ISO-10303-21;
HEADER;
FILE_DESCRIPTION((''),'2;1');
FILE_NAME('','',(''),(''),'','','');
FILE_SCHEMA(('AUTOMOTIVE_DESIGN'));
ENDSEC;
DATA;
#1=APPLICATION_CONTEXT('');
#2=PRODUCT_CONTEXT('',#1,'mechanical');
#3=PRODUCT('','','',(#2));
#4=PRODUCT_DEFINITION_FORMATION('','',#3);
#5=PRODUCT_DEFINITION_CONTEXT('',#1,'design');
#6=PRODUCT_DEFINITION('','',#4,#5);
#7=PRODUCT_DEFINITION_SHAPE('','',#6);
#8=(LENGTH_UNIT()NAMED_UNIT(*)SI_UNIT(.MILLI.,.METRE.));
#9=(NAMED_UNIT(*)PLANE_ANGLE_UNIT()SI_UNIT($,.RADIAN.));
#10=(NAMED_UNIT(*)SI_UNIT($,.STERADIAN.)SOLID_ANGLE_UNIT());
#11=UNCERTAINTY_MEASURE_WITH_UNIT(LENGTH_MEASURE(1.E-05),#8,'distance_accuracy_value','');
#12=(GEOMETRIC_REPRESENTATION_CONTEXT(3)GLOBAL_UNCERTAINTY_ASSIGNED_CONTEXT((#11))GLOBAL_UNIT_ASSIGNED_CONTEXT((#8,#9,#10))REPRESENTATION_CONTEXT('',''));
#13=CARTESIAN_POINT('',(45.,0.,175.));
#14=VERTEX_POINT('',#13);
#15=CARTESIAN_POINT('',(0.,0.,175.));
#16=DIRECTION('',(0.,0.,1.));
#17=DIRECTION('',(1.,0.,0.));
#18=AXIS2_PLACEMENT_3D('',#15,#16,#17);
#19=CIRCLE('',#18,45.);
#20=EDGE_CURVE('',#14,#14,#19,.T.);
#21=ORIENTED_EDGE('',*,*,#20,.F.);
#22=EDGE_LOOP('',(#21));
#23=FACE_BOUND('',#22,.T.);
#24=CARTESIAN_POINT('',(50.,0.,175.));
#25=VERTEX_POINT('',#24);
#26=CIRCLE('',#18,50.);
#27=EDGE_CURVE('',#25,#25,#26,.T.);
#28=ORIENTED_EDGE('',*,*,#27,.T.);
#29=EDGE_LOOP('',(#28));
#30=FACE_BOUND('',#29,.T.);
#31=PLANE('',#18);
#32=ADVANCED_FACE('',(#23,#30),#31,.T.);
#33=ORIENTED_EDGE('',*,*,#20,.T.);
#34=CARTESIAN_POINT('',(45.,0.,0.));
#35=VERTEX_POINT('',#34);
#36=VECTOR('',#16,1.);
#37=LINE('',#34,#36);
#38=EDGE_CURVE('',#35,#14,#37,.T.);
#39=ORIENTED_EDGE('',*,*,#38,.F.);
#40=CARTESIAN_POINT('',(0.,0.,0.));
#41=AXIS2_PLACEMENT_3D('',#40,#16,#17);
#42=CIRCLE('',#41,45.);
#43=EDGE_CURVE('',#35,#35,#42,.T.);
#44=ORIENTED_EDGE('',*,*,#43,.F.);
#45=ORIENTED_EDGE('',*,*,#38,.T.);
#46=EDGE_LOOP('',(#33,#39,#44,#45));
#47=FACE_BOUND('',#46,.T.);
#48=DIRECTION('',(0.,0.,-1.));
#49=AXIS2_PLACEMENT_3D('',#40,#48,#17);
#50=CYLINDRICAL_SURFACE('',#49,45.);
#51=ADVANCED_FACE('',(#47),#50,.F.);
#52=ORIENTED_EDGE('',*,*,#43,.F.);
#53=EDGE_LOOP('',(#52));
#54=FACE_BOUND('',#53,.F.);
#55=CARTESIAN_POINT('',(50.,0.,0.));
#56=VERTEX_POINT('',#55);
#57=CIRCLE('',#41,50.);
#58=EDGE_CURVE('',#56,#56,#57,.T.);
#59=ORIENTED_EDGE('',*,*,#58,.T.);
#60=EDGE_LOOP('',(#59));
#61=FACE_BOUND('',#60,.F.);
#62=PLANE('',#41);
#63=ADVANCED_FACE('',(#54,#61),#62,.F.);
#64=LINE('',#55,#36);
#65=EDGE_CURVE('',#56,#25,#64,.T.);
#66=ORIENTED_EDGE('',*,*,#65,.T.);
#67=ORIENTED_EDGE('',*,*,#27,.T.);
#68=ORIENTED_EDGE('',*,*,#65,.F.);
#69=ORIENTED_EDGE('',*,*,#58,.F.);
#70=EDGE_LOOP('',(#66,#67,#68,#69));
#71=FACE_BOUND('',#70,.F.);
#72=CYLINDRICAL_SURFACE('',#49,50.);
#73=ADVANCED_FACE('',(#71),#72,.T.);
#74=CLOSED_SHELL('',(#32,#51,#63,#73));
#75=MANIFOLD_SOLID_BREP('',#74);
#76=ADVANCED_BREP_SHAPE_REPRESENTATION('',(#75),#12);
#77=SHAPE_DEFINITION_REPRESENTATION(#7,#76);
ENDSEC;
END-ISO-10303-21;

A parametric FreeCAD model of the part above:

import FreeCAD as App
import Part
import Sketcher

doc = App.newDocument("Part")
body = doc.addObject("PartDesign::Body", "Body")

# Sketch on XY plane
sketch1 = doc.addObject("Sketcher::SketchObject", "Sketch")
body.addObject(sketch1)
sketch1.AttachmentSupport = (doc.XY_Plane, [""])
sketch1.MapMode = "FlatFace"
sketch1.addGeometry([
    Part.Circle(App.Vector(0, 0, 0), App.Vector(0, 0, 1), 50),
    Part.Circle(App.Vector(0, 0, 0), App.Vector(0, 0, 1), 45),
], False)
sketch1.addConstraint([
    Sketcher.Constraint("Coincident", 0, 3, -1, 1),
    Sketcher.Constraint("Coincident", 1, 3, -1, 1),
    Sketcher.Constraint("Diameter", 0, 100.0),
    Sketcher.Constraint("Diameter", 1, 90.0),
])
pad1 = doc.addObject("PartDesign::Pad", "Pad")
body.addObject(pad1)
pad1.Profile = sketch1
pad1.Length = 175

doc.recompute()
